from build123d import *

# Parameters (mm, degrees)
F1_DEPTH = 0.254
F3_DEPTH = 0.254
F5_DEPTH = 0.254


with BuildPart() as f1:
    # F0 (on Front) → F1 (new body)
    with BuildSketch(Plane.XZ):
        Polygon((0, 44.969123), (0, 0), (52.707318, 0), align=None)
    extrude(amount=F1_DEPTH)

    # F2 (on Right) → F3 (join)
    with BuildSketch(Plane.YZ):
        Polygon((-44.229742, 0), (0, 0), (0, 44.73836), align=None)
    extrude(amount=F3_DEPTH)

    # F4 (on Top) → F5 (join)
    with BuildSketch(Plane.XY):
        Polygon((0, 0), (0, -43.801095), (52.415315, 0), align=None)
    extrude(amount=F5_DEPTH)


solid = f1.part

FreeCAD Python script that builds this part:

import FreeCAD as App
import Part
import Sketcher

V = App.Vector
Q = App.Units.Quantity

doc = App.newDocument("Part")
body = doc.addObject("PartDesign::Body", "Body")

# Sketch on XZ plane
sketch1 = body.newObject("Sketcher::SketchObject", "Sketch")
sketch1.AttachmentSupport = (doc.getObject("XZ_Plane"), [""])
sketch1.MapMode = "FlatFace"
sketch1.addGeometry([
    Part.LineSegment(V(0, 44.969123, 0), V(0, 0, 0)),
    Part.LineSegment(V(0, 0, 0), V(52.707318, 0, 0)),
    Part.LineSegment(V(52.707318, 0, 0), V(0, 44.969123, 0)),
], False)
sketch1.addConstraint([
    Sketcher.Constraint("Coincident", 0, 2, 1, 1),
    Sketcher.Constraint("Coincident", 1, 2, 2, 1),
    Sketcher.Constraint("Coincident", 2, 2, 0, 1),
    Sketcher.Constraint("Vertical", 0),
    Sketcher.Constraint("Horizontal", 1),
    Sketcher.Constraint("Coincident", 0, 2, -1, 1),
    Sketcher.Constraint("DistanceX", 1, 1, 1, 2, 52.707318),
    Sketcher.Constraint("DistanceY", 0, 2, 0, 1, 44.969123),
])
pad1 = body.newObject("PartDesign::Pad", "Pad")
pad1.Profile = sketch1
pad1.Length = Q("0.01 in")

# Sketch on YZ plane
sketch2 = body.newObject("Sketcher::SketchObject", "Sketch001")
sketch2.AttachmentSupport = (doc.getObject("YZ_Plane"), [""])
sketch2.MapMode = "FlatFace"
sketch2.addGeometry([
    Part.LineSegment(V(-44.229742, 0, 0), V(0, 0, 0)),
    Part.LineSegment(V(0, 0, 0), V(0, 44.73836, 0)),
    Part.LineSegment(V(0, 44.73836, 0), V(-44.229742, 0, 0)),
], False)
sketch2.addConstraint([
    Sketcher.Constraint("Coincident", 0, 2, 1, 1),
    Sketcher.Constraint("Coincident", 1, 2, 2, 1),
    Sketcher.Constraint("Coincident", 2, 2, 0, 1),
    Sketcher.Constraint("Horizontal", 0),
    Sketcher.Constraint("Vertical", 1),
    Sketcher.Constraint("Coincident", 0, 2, -1, 1),
    Sketcher.Constraint("DistanceY", 1, 1, 1, 2, 44.73836),
    Sketcher.Constraint("DistanceX", 0, 1, 0, 2, 44.229742),
])
pad2 = body.newObject("PartDesign::Pad", "Pad001")
pad2.Profile = sketch2
pad2.Length = Q("0.01 in")

# Sketch on XY plane
sketch3 = body.newObject("Sketcher::SketchObject", "Sketch002")
sketch3.AttachmentSupport = (doc.getObject("XY_Plane"), [""])
sketch3.MapMode = "FlatFace"
sketch3.addGeometry([
    Part.LineSegment(V(0, 0, 0), V(0, -43.801095, 0)),
    Part.LineSegment(V(0, -43.801095, 0), V(52.415315, 0, 0)),
    Part.LineSegment(V(52.415315, 0, 0), V(0, 0, 0)),
], False)
sketch3.addConstraint([
    Sketcher.Constraint("Coincident", 0, 2, 1, 1),
    Sketcher.Constraint("Coincident", 1, 2, 2, 1),
    Sketcher.Constraint("Coincident", 2, 2, 0, 1),
    Sketcher.Constraint("Vertical", 0),
    Sketcher.Constraint("Horizontal", 2),
    Sketcher.Constraint("Coincident", 2, 2, -1, 1),
    Sketcher.Constraint("DistanceX", 2, 2, 2, 1, 52.415315),
    Sketcher.Constraint("DistanceY", 0, 2, 0, 1, 43.801095),
])
pad3 = body.newObject("PartDesign::Pad", "Pad002")
pad3.Profile = sketch3
pad3.Length = Q("0.01 in")

doc.recompute()
